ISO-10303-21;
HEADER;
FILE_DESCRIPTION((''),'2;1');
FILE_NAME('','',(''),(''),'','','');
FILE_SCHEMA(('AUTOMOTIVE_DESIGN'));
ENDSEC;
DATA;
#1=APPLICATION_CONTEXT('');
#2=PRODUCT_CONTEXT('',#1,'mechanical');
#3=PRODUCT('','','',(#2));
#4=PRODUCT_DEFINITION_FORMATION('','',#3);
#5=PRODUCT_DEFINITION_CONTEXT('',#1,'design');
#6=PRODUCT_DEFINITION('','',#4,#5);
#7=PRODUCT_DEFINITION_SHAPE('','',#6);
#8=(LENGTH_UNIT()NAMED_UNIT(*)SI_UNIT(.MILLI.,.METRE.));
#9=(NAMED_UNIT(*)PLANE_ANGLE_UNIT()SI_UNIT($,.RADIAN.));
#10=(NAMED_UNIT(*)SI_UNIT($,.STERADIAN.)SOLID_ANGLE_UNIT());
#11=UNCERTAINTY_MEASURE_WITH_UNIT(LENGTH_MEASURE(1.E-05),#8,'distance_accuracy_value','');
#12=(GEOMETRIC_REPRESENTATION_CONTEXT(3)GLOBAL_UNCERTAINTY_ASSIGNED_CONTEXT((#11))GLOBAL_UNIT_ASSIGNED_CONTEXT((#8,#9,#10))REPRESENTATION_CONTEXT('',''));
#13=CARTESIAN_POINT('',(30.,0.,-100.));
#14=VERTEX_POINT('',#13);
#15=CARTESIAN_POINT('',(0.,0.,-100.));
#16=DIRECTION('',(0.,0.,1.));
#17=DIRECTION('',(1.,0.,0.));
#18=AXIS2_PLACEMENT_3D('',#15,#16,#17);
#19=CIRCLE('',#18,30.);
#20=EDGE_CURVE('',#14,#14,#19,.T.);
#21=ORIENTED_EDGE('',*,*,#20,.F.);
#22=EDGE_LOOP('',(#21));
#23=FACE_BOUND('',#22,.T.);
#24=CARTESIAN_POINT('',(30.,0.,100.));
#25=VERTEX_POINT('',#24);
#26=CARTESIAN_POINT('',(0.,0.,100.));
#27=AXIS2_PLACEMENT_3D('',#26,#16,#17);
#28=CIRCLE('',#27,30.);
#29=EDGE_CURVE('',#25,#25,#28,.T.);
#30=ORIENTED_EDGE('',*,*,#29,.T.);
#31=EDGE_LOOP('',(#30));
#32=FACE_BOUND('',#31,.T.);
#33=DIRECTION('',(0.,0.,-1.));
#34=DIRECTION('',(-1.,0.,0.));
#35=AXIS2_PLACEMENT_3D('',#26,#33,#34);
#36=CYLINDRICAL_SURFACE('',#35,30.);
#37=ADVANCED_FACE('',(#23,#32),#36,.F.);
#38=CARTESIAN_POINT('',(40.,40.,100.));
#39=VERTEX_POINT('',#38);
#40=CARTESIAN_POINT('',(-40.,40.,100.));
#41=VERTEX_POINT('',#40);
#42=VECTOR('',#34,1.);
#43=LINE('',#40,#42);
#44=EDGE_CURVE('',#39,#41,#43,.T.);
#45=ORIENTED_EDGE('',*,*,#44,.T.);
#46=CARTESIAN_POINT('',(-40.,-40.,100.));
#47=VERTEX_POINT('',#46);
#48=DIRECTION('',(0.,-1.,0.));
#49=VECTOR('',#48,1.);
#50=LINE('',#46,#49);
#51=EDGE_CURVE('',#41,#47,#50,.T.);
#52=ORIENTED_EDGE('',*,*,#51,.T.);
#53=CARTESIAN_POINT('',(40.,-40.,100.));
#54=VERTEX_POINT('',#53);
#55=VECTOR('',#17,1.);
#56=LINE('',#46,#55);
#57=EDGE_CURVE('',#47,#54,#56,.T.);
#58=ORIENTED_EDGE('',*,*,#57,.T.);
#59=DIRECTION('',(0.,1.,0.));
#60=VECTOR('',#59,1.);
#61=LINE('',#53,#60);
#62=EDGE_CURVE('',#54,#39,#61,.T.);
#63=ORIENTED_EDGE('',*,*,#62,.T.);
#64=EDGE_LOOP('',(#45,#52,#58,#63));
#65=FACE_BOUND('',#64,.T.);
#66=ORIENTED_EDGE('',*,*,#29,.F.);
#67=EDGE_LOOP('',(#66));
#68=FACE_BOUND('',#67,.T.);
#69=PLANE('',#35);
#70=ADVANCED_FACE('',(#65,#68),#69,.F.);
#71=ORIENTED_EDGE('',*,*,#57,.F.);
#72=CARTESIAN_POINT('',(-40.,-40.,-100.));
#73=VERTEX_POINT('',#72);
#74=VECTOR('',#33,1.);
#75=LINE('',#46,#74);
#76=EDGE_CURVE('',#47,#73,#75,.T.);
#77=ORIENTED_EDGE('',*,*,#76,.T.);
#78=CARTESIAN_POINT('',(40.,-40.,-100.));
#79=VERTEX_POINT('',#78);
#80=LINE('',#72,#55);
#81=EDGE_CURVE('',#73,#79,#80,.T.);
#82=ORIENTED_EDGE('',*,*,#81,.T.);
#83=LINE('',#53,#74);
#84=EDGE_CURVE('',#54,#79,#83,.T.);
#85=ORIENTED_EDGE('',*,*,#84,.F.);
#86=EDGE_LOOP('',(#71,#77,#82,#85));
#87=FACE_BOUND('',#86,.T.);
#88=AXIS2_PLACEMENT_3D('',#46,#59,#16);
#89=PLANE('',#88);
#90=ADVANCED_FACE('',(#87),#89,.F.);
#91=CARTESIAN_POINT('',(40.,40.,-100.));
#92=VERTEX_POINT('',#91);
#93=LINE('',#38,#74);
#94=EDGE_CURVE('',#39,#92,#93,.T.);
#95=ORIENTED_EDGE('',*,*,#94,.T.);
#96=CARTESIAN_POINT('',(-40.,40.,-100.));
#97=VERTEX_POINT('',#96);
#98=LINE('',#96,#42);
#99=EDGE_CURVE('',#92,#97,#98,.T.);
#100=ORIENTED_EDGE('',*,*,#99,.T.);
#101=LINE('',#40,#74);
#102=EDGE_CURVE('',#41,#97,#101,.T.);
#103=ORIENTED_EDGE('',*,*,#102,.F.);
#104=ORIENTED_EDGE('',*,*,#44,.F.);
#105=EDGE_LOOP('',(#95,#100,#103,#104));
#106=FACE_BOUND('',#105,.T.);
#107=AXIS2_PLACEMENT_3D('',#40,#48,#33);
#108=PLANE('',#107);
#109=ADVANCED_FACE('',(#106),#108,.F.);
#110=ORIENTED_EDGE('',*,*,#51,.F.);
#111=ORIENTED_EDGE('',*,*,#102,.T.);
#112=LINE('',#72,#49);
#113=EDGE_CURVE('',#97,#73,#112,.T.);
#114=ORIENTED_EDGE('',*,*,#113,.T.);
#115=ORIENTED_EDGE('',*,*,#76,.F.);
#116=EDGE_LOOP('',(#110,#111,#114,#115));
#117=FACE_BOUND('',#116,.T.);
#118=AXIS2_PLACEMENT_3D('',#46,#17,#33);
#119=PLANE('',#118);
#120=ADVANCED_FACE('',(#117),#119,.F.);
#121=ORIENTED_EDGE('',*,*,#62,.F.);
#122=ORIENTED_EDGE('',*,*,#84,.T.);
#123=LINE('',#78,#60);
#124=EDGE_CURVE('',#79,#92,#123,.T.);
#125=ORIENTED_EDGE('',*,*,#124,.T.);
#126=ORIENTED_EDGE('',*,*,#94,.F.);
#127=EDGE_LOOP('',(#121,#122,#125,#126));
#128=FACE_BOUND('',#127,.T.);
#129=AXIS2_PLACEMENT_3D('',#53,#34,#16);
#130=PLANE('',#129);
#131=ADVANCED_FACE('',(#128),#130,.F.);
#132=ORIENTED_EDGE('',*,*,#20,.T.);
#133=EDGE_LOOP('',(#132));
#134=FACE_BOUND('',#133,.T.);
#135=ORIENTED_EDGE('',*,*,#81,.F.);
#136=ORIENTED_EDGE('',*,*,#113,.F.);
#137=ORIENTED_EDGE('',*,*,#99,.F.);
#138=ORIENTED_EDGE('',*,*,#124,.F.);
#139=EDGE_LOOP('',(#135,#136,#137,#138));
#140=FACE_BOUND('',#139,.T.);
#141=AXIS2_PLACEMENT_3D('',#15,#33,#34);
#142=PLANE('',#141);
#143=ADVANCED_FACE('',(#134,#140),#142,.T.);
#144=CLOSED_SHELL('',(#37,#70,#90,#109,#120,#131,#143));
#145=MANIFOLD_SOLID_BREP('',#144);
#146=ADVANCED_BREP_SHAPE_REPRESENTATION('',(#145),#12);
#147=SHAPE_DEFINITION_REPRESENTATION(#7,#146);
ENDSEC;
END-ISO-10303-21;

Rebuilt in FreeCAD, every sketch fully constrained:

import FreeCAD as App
import Part
import Sketcher
from FreeCAD import Vector
Q = App.Units.Quantity

doc = App.newDocument("Part")
body = doc.addObject("PartDesign::Body", "Body")

# Sketch on XY plane
sketch1 = body.newObject("Sketcher::SketchObject", "Sketch")
sketch1.AttachmentSupport = (doc.getObject("XY_Plane"), [""])
sketch1.MapMode = "FlatFace"
sketch1.addGeometry([
    Part.LineSegment(Vector(-40, 40, 0), Vector(-40, -40, 0)),  # 0
    Part.LineSegment(Vector(-40, -40, 0), Vector(40, -40, 0)),  # 1
    Part.LineSegment(Vector(40, -40, 0), Vector(40, 40, 0)),  # 2
    Part.LineSegment(Vector(40, 40, 0), Vector(-40, 40, 0)),  # 3
    Part.Circle(Vector(0, 0, 0), Vector(0, 0, 1), 30),  # 4
], False)
sketch1.addConstraint([
    Sketcher.Constraint("Coincident", 0, 2, 1, 1),
    Sketcher.Constraint("Coincident", 1, 2, 2, 1),
    Sketcher.Constraint("Coincident", 2, 2, 3, 1),
    Sketcher.Constraint("Coincident", 3, 2, 0, 1),
    Sketcher.Constraint("Vertical", 0),
    Sketcher.Constraint("Horizontal", 1),
    Sketcher.Constraint("Vertical", 2),
    Sketcher.Constraint("Horizontal", 3),
    Sketcher.Constraint("Coincident", 4, 3, -1, 1),
    Sketcher.Constraint("Symmetric", 0, 2, 2, 2, -1, 1),
    Sketcher.Constraint("Equal", 3, 0),
    Sketcher.Constraint("Diameter", 4, Q("60 mm")),
    Sketcher.Constraint("DistanceX", 1, 1, 1, 2, Q("80 mm")),
])
pad1 = body.newObject("PartDesign::Pad", "Pad")
pad1.Profile = sketch1
pad1.Length = 200
pad1.Midplane = True

doc.recompute()
